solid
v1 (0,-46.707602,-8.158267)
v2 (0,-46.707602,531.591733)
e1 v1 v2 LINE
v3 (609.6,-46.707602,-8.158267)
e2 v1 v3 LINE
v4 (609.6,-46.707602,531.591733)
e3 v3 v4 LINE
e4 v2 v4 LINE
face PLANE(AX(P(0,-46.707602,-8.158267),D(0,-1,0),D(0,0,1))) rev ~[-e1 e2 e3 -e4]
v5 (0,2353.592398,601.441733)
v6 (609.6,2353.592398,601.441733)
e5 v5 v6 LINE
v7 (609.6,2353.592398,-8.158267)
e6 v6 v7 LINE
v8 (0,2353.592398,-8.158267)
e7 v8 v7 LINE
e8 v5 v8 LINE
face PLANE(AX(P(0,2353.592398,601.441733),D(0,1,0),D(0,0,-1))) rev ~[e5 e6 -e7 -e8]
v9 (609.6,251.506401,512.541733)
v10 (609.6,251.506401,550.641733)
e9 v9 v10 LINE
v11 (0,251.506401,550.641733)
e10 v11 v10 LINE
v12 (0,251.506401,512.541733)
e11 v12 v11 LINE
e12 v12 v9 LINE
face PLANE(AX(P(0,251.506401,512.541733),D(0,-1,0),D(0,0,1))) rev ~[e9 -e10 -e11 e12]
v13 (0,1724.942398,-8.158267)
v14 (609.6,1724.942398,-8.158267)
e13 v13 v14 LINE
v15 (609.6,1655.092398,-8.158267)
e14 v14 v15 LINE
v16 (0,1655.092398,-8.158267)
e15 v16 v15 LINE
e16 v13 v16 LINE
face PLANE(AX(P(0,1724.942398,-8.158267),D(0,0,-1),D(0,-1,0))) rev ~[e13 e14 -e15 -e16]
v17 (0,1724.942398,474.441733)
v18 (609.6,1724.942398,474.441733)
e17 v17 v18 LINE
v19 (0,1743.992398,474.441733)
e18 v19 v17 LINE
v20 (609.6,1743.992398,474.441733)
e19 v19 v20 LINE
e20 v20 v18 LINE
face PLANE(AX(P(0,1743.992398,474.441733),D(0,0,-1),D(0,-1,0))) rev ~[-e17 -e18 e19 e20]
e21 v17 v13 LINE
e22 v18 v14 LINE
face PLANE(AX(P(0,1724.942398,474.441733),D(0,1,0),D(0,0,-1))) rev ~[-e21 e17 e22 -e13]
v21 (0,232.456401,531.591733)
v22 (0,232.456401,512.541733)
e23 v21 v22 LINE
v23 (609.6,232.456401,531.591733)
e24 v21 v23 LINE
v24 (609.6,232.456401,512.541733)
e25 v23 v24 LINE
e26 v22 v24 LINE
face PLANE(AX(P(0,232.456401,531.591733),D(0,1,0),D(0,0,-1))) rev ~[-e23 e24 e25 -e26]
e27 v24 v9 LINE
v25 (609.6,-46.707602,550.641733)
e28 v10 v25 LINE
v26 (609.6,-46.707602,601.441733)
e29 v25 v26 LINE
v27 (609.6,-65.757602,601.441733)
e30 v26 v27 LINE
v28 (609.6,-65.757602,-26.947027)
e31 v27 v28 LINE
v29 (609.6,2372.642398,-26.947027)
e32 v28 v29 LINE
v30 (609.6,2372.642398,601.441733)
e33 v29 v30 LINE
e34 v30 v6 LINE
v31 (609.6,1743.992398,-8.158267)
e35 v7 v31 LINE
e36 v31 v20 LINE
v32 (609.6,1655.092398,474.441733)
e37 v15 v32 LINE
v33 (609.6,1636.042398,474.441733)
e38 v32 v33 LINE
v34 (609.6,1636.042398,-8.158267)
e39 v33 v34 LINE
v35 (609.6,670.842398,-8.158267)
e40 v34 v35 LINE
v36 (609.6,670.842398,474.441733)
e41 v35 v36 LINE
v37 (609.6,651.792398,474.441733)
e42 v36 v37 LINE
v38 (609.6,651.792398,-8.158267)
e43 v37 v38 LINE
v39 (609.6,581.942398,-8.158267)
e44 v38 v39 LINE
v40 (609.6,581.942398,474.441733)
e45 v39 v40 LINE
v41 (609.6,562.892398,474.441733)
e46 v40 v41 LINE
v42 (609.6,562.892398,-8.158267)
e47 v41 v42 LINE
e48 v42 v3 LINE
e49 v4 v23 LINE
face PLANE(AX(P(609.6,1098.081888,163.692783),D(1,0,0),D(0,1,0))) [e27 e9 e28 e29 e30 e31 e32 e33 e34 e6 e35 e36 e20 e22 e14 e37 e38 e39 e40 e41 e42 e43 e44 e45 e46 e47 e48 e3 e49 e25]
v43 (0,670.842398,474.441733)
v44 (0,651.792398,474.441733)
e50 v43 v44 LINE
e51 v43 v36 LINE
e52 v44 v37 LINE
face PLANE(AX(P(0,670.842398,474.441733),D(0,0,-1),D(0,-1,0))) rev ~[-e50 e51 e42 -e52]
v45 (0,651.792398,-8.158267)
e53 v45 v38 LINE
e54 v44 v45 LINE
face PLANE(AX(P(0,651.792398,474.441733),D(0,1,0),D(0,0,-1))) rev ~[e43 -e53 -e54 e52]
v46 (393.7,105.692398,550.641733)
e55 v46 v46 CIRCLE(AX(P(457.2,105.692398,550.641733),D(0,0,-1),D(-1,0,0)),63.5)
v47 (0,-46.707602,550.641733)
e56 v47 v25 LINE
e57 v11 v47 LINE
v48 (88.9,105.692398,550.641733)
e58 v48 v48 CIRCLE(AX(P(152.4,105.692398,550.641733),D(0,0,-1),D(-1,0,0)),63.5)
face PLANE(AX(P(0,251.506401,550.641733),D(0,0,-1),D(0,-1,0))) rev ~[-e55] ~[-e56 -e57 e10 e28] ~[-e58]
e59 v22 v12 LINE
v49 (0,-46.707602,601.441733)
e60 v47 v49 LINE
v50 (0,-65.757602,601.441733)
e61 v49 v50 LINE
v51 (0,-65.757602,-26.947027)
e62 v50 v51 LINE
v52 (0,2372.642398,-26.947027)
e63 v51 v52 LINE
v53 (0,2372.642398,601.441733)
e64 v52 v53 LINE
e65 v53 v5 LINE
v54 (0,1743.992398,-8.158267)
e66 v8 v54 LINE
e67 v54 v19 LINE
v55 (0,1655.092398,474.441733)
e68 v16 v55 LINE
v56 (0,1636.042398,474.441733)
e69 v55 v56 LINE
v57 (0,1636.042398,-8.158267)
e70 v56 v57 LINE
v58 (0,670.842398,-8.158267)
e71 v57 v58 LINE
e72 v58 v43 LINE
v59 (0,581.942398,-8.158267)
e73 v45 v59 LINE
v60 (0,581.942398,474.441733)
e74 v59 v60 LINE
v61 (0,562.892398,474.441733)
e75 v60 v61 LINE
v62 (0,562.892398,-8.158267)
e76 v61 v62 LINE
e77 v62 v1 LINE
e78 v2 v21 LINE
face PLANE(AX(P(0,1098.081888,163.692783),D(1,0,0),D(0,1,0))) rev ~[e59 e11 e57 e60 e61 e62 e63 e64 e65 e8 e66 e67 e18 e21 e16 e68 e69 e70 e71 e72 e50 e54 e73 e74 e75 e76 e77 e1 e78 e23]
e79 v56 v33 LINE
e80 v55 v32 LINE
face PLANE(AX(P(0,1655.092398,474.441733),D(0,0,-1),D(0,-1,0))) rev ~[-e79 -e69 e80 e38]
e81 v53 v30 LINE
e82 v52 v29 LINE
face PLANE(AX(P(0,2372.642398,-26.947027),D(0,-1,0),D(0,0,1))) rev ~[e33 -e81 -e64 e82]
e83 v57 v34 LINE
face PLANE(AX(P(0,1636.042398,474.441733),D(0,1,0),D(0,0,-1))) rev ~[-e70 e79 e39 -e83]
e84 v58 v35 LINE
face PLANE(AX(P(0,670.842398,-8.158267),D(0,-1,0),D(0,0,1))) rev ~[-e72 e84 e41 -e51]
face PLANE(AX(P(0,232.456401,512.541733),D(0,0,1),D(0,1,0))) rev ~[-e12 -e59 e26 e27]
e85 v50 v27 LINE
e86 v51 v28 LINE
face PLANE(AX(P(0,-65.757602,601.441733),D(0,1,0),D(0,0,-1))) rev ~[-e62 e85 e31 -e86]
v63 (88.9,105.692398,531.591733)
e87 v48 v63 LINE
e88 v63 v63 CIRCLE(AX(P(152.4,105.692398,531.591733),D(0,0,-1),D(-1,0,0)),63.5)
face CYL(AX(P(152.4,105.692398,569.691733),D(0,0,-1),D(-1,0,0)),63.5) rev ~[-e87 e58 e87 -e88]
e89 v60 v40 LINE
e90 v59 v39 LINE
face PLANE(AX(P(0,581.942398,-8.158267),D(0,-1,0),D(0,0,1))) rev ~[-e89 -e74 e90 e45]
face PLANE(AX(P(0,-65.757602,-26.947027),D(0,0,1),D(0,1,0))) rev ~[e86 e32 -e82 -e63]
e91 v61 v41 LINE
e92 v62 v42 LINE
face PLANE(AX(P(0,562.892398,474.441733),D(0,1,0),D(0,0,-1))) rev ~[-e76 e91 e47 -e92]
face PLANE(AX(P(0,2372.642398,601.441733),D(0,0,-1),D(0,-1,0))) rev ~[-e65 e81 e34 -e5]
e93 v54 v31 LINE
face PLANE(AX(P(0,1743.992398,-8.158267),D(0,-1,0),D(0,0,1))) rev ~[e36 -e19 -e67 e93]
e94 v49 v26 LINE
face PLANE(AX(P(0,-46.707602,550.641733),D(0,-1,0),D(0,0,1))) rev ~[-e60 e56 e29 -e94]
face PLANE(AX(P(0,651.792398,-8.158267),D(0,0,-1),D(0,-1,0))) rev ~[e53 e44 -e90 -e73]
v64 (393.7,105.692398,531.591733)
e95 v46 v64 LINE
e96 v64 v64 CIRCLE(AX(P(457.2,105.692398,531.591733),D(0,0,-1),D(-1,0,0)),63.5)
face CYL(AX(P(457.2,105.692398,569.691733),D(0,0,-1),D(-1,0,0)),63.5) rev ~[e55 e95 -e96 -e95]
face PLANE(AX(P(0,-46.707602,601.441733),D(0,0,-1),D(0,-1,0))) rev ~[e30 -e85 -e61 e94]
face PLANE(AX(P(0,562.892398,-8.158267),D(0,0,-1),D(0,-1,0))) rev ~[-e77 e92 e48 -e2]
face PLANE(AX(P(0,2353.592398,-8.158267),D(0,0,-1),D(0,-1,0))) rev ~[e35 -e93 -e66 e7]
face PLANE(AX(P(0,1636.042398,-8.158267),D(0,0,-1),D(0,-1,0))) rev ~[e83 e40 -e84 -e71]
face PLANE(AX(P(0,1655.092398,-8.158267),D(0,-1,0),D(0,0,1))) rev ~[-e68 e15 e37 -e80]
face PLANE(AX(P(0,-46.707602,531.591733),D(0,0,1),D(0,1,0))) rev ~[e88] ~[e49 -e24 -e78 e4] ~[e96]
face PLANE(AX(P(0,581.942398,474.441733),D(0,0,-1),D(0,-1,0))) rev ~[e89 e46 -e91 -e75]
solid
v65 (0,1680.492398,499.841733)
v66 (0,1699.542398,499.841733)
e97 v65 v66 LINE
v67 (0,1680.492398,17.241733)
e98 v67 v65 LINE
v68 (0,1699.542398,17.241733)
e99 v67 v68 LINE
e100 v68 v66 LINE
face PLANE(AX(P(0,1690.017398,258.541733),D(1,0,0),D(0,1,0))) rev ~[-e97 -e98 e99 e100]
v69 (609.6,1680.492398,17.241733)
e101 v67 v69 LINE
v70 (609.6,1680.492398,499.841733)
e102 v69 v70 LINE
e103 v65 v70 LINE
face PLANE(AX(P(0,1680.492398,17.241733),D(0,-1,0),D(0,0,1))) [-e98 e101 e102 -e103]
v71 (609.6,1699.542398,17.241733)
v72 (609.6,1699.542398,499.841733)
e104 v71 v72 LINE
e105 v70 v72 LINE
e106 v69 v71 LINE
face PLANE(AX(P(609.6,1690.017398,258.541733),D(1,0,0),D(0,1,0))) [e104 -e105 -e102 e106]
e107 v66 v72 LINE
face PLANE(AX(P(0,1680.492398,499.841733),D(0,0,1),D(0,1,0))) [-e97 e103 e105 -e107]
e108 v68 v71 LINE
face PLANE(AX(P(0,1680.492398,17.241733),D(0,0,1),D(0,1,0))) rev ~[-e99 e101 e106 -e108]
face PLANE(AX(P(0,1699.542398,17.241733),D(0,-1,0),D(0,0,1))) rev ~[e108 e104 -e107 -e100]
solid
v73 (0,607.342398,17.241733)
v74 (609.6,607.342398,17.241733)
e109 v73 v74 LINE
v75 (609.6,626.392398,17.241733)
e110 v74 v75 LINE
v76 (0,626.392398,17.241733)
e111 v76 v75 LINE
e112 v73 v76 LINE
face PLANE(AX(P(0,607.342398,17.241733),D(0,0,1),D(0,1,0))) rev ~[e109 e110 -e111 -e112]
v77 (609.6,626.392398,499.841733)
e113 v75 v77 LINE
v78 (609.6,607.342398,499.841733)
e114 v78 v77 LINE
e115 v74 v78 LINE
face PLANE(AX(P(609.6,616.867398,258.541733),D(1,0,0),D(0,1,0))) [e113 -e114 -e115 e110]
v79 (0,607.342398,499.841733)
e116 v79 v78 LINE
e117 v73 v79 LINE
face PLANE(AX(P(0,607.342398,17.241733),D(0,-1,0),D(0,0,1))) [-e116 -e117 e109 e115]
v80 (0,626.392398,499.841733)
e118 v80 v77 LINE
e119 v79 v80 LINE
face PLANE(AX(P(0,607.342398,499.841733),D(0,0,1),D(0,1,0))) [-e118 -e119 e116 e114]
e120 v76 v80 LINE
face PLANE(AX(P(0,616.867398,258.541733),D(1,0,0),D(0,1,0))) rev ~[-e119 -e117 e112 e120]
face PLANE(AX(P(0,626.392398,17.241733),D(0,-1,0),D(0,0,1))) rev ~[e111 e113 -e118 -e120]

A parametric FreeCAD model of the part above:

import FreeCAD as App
import Part
import Sketcher
from FreeCAD import Vector
Q = App.Units.Quantity


def add_polygon(sketch, points):
    """Adds a closed chain of lines whose ends are joined by coincident constraints."""
    first, n = sketch.GeometryCount, len(points)
    for a, b in zip(points, points[1:] + points[:1]):
        sketch.addGeometry(Part.LineSegment(App.Vector(*a, 0), App.Vector(*b, 0)), False)
    for i in range(n):
        sketch.addConstraint(Sketcher.Constraint("Coincident", first + i, 2, first + (i + 1) % n, 1))

doc = App.newDocument("Part")
body = doc.addObject("PartDesign::Body", "Body")
body.AllowCompound = True

# Sketch on YZ plane
sketch1 = body.newObject("Sketcher::SketchObject", "Sketch")
sketch1.AttachmentSupport = (doc.getObject("YZ_Plane"), [""])
sketch1.MapMode = "FlatFace"
add_polygon(sketch1, [(-47, 601), (-66, 601), (-66, -27), (2373, -27), (2373, 601), (2354, 601), (2354, -8), (1744, -8), (1744, 474), (1725, 474), (1725, -8), (1655, -8), (1655, 474), (1636, 474), (1636, -8), (671, -8), (671, 474), (652, 474), (652, -8), (582, -8), (582, 474), (563, 474), (563, -8), (-47, -8), (-47, 532), (232, 532), (232, 513), (252, 513), (252, 551), (-47, 551)])  # lines 0-29
add_polygon(sketch1, [(607, 500), (607, 17), (626, 17), (626, 500)])  # lines 30-33
add_polygon(sketch1, [(1680, 500), (1680, 17), (1700, 17), (1700, 500)])  # lines 34-37
sketch1.addConstraint([
    Sketcher.Constraint("Horizontal", 0),
    Sketcher.Constraint("Vertical", 1),
    Sketcher.Constraint("Horizontal", 2),
    Sketcher.Constraint("Vertical", 3),
    Sketcher.Constraint("Horizontal", 4),
    Sketcher.Constraint("Vertical", 5),
    Sketcher.Constraint("Horizontal", 6),
    Sketcher.Constraint("Vertical", 7),
    Sketcher.Constraint("Horizontal", 8),
    Sketcher.Constraint("Vertical", 9),
    Sketcher.Constraint("Horizontal", 10),
    Sketcher.Constraint("Vertical", 11),
    Sketcher.Constraint("Horizontal", 12),
    Sketcher.Constraint("Vertical", 13),
    Sketcher.Constraint("Horizontal", 14),
    Sketcher.Constraint("Vertical", 15),
    Sketcher.Constraint("Horizontal", 16),
    Sketcher.Constraint("Vertical", 17),
    Sketcher.Constraint("Horizontal", 18),
    Sketcher.Constraint("Vertical", 19),
    Sketcher.Constraint("Horizontal", 20),
    Sketcher.Constraint("Vertical", 21),
    Sketcher.Constraint("Horizontal", 22),
    Sketcher.Constraint("Vertical", 23),
    Sketcher.Constraint("Horizontal", 24),
    Sketcher.Constraint("Vertical", 25),
    Sketcher.Constraint("Horizontal", 26),
    Sketcher.Constraint("Vertical", 27),
    Sketcher.Constraint("Horizontal", 28),
    Sketcher.Constraint("Vertical", 29),
    Sketcher.Constraint("Vertical", 30),
    Sketcher.Constraint("Horizontal", 31),
    Sketcher.Constraint("Vertical", 32),
    Sketcher.Constraint("Horizontal", 33),
    Sketcher.Constraint("Vertical", 34),
    Sketcher.Constraint("Horizontal", 35),
    Sketcher.Constraint("Vertical", 36),
    Sketcher.Constraint("Horizontal", 37),
    Sketcher.Constraint("Horizontal", 0, 2, 3, 2),
    Sketcher.Constraint("Horizontal", 6, 2, 9, 2),
    Sketcher.Constraint("Horizontal", 8, 2, 11, 2),
    Sketcher.Constraint("Horizontal", 10, 2, 13, 2),
    Sketcher.Constraint("Horizontal", 12, 2, 15, 2),
    Sketcher.Constraint("Horizontal", 14, 2, 17, 2),
    Sketcher.Constraint("Horizontal", 16, 2, 19, 2),
    Sketcher.Constraint("Horizontal", 18, 2, 21, 2),
    Sketcher.Constraint("Horizontal", 31, 2, 34, 2),
    Sketcher.Constraint("Horizontal", 33, 2, 36, 2),
    Sketcher.Constraint("Vertical", 23, 2, 28, 2),
    Sketcher.Constraint("Equal", 0, 4),
    Sketcher.Constraint("Equal", 4, 8),
    Sketcher.Constraint("Equal", 8, 12),
    Sketcher.Constraint("Equal", 12, 16),
    Sketcher.Constraint("Equal", 10, 18),
    Sketcher.Constraint("Equal", 16, 20),
    Sketcher.Constraint("Equal", 6, 22),
    Sketcher.Constraint("Equal", 20, 26),
    Sketcher.Constraint("Equal", 26, 31),
    Sketcher.Constraint("Equal", 33, 35),
    Sketcher.Constraint("Equal", 22, 5),
    Sketcher.Constraint("Equal", 37, 25),
    Sketcher.Constraint("Equal", 21, 30),
    Sketcher.Constraint("DistanceX", 2, 1, 2, 2, Q("96 in")),
    Sketcher.Constraint("DistanceX", 6, 2, 6, 1, Q("24 in")),
    Sketcher.Constraint("DistanceX", 14, 2, 14, 1, Q("38 in")),
    Sketcher.Constraint("DistanceY", 7, 1, 7, 2, Q("19 in")),
    Sketcher.Constraint("DistanceY", 29, 1, 29, 2, Q("2 in")),
    Sketcher.Constraint("DistanceY", 27, 1, 27, 2, Q("1.5 in")),
    Sketcher.Constraint("DistanceX", 18, 2, 30, 2, Q("1 in")),
    Sketcher.Constraint("DistanceY", 18, 2, 30, 2, Q("1 in")),
    Sketcher.Constraint("DistanceX", 31, 2, 17, 2, Q("1 in")),
    Sketcher.Constraint("DistanceX", 10, 2, 34, 2, Q("1 in")),
    Sketcher.Constraint("DistanceY", 1, 2, 1, 1, Q("628.38876 mm")),
    Sketcher.Constraint("DistanceX", -1, 1, 6, 2, Q("1743.992398 mm")),
    Sketcher.Constraint("DistanceX", -1, 1, 24, 2, Q("232.456401 mm")),
    Sketcher.Constraint("DistanceY", -1, 1, 0, 2, Q("601.441733 mm")),
])
pad1 = body.newObject("PartDesign::Pad", "Pad")
pad1.Profile = sketch1
pad1.Length = Q("24 in")

# Sketch on XY plane
sketch2 = body.newObject("Sketcher::SketchObject", "Sketch001")
sketch2.AttachmentSupport = (doc.getObject("XY_Plane"), [""])
sketch2.MapMode = "FlatFace"
sketch2.AttachmentOffset = App.Placement(Vector(0, 0, 550.641733), App.Rotation())
sketch2.addGeometry([
    Part.Circle(Vector(152, 106, 0), Vector(0, 0, 1), 64),
    Part.Circle(Vector(457, 106, 0), Vector(0, 0, 1), 64),
], False)
sketch2.addConstraint([
    Sketcher.Constraint("Equal", 0, 1),
    Sketcher.Constraint("Horizontal", 0, 3, 1, 3),
    Sketcher.Constraint("Diameter", 0, Q("5 in")),
    Sketcher.Constraint("DistanceX", -1, 1, 0, 3, Q("6 in")),
    Sketcher.Constraint("DistanceX", -1, 1, 1, 3, Q("18 in")),
    Sketcher.Constraint("DistanceY", -1, 1, 0, 3, Q("105.692398 mm")),
])
doc.recompute()
hole = body.newObject("PartDesign::Hole", "Hole")
hole.Profile = sketch2
hole.ThreadType = "None"
hole.Diameter = Q("5 in")
hole.DepthType = "Dimension"
hole.Depth = Q("0.75 in")
hole.DrillPoint = "Flat"

doc.recompute()
